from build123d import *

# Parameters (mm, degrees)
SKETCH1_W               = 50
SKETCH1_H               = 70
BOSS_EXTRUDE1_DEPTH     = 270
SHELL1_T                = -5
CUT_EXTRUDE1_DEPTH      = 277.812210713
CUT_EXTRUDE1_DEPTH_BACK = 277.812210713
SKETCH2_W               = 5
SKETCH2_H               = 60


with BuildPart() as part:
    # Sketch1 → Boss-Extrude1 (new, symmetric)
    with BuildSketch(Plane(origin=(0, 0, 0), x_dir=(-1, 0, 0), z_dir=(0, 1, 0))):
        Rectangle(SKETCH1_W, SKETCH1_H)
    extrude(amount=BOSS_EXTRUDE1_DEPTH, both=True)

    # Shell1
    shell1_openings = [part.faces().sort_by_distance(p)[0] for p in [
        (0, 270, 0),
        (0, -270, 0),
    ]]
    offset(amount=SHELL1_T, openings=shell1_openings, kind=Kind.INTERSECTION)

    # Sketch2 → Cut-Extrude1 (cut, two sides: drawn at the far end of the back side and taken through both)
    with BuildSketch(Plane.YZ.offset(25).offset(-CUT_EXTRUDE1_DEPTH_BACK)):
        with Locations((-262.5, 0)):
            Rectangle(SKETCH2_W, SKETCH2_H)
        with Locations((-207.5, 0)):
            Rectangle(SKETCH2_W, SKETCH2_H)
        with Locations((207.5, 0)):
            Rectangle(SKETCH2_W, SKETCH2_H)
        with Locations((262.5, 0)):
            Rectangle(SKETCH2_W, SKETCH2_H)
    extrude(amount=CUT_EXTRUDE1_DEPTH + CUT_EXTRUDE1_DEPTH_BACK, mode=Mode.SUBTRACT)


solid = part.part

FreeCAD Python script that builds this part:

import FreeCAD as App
import Part
import Sketcher

V = App.Vector


def faces_at(feature, points):
    """Names of the faces that lie closest to the given points."""
    faces = feature.Shape.Faces
    near = lambda p: min(range(len(faces)), key=lambda i: faces[i].distToShape(Part.Vertex(*p))[0])
    return sorted({f"Face{near(p) + 1}" for p in points})

doc = App.newDocument("Part")
body = doc.addObject("PartDesign::Body", "Body")

sketch1 = body.newObject("Sketcher::SketchObject", "Sketch")
sketch1.AttachmentSupport = (doc.getObject("XZ_Plane"), [""])
sketch1.MapMode = "FlatFace"
sketch1.addGeometry([
    Part.LineSegment(V(25, 35, 0), V(25, -35, 0)),
    Part.LineSegment(V(25, -35, 0), V(-25, -35, 0)),
    Part.LineSegment(V(-25, -35, 0), V(-25, 35, 0)),
    Part.LineSegment(V(-25, 35, 0), V(25, 35, 0)),
], False)
sketch1.addConstraint([
    Sketcher.Constraint("Coincident", 0, 2, 1, 1),
    Sketcher.Constraint("Coincident", 1, 2, 2, 1),
    Sketcher.Constraint("Coincident", 2, 2, 3, 1),
    Sketcher.Constraint("Coincident", 3, 2, 0, 1),
    Sketcher.Constraint("Vertical", 0),
    Sketcher.Constraint("Horizontal", 1),
    Sketcher.Constraint("Vertical", 2),
    Sketcher.Constraint("Horizontal", 3),
    Sketcher.Constraint("Symmetric", 0, 2, 2, 2, -1, 1),
    Sketcher.Constraint("DistanceX", 1, 2, 1, 1, 50.0),
    Sketcher.Constraint("DistanceY", 0, 2, 0, 1, 70.0),
])
pad1 = body.newObject("PartDesign::Pad", "Pad")
pad1.Profile = sketch1
pad1.Length = 540
pad1.Midplane = True
doc.recompute()

thickness = body.newObject("PartDesign::Thickness", "Thickness")
thickness.Base = (pad1, faces_at(pad1, [(0, 270, 0), (0, -270, 0)]))
thickness.Value = 5
thickness.Reversed = True
thickness.Join = "Intersection"

sketch2 = body.newObject("Sketcher::SketchObject", "Sketch001")
sketch2.AttachmentSupport = (doc.getObject("YZ_Plane"), [""])
sketch2.MapMode = "FlatFace"
sketch2.AttachmentOffset = App.Placement(V(0, 0, 25), App.Rotation())
sketch2.addGeometry([
    Part.LineSegment(V(-265, 30, 0), V(-265, -30, 0)),
    Part.LineSegment(V(-265, -30, 0), V(-260, -30, 0)),
    Part.LineSegment(V(-260, -30, 0), V(-260, 30, 0)),
    Part.LineSegment(V(-260, 30, 0), V(-265, 30, 0)),
    Part.LineSegment(V(-210, 30, 0), V(-210, -30, 0)),
    Part.LineSegment(V(-210, -30, 0), V(-205, -30, 0)),
    Part.LineSegment(V(-205, -30, 0), V(-205, 30, 0)),
    Part.LineSegment(V(-205, 30, 0), V(-210, 30, 0)),
    Part.LineSegment(V(205, 30, 0), V(205, -30, 0)),
    Part.LineSegment(V(205, -30, 0), V(210, -30, 0)),
    Part.LineSegment(V(210, -30, 0), V(210, 30, 0)),
    Part.LineSegment(V(210, 30, 0), V(205, 30, 0)),
    Part.LineSegment(V(260, 30, 0), V(260, -30, 0)),
    Part.LineSegment(V(260, -30, 0), V(265, -30, 0)),
    Part.LineSegment(V(265, -30, 0), V(265, 30, 0)),
    Part.LineSegment(V(265, 30, 0), V(260, 30, 0)),
], False)
sketch2.addConstraint([
    Sketcher.Constraint("Coincident", 0, 2, 1, 1),
    Sketcher.Constraint("Coincident", 1, 2, 2, 1),
    Sketcher.Constraint("Coincident", 2, 2, 3, 1),
    Sketcher.Constraint("Coincident", 3, 2, 0, 1),
    Sketcher.Constraint("Coincident", 4, 2, 5, 1),
    Sketcher.Constraint("Coincident", 5, 2, 6, 1),
    Sketcher.Constraint("Coincident", 6, 2, 7, 1),
    Sketcher.Constraint("Coincident", 7, 2, 4, 1),
    Sketcher.Constraint("Coincident", 8, 2, 9, 1),
    Sketcher.Constraint("Coincident", 9, 2, 10, 1),
    Sketcher.Constraint("Coincident", 10, 2, 11, 1),
    Sketcher.Constraint("Coincident", 11, 2, 8, 1),
    Sketcher.Constraint("Coincident", 12, 2, 13, 1),
    Sketcher.Constraint("Coincident", 13, 2, 14, 1),
    Sketcher.Constraint("Coincident", 14, 2, 15, 1),
    Sketcher.Constraint("Coincident", 15, 2, 12, 1),
    Sketcher.Constraint("Vertical", 0),
    Sketcher.Constraint("Horizontal", 1),
    Sketcher.Constraint("Vertical", 2),
    Sketcher.Constraint("Horizontal", 3),
    Sketcher.Constraint("Vertical", 4),
    Sketcher.Constraint("Horizontal", 5),
    Sketcher.Constraint("Vertical", 6),
    Sketcher.Constraint("Horizontal", 7),
    Sketcher.Constraint("Vertical", 8),
    Sketcher.Constraint("Horizontal", 9),
    Sketcher.Constraint("Vertical", 10),
    Sketcher.Constraint("Horizontal", 11),
    Sketcher.Constraint("Vertical", 12),
    Sketcher.Constraint("Horizontal", 13),
    Sketcher.Constraint("Vertical", 14),
    Sketcher.Constraint("Horizontal", 15),
    Sketcher.Constraint("Symmetric", 6, 2, 8, 2, -1, 1),
    Sketcher.Constraint("Symmetric", 4, 2, 10, 2, -1, 1),
    Sketcher.Constraint("Symmetric", 2, 2, 12, 2, -1, 1),
    Sketcher.Constraint("Symmetric", 0, 2, 14, 2, -1, 1),
    Sketcher.Constraint("Horizontal", 1, 2, 4, 2),
    Sketcher.Constraint("Horizontal", 3, 2, 6, 2),
    Sketcher.Constraint("Horizontal", 5, 2, 8, 2),
    Sketcher.Constraint("Equal", 3, 5),
    Sketcher.Constraint("DistanceX", 1, 1, 1, 2, 5.0),
    Sketcher.Constraint("DistanceY", 0, 2, 0, 1, 60.0),
    Sketcher.Constraint("DistanceX", 0, 2, -1, 1, 265.0),
    Sketcher.Constraint("DistanceX", 4, 2, -1, 1, 210.0),
])
pocket1 = body.newObject("PartDesign::Pocket", "Pocket")
pocket1.Profile = sketch2
pocket1.Type = "ThroughAll"
pocket1.Midplane = True

doc.recompute()
